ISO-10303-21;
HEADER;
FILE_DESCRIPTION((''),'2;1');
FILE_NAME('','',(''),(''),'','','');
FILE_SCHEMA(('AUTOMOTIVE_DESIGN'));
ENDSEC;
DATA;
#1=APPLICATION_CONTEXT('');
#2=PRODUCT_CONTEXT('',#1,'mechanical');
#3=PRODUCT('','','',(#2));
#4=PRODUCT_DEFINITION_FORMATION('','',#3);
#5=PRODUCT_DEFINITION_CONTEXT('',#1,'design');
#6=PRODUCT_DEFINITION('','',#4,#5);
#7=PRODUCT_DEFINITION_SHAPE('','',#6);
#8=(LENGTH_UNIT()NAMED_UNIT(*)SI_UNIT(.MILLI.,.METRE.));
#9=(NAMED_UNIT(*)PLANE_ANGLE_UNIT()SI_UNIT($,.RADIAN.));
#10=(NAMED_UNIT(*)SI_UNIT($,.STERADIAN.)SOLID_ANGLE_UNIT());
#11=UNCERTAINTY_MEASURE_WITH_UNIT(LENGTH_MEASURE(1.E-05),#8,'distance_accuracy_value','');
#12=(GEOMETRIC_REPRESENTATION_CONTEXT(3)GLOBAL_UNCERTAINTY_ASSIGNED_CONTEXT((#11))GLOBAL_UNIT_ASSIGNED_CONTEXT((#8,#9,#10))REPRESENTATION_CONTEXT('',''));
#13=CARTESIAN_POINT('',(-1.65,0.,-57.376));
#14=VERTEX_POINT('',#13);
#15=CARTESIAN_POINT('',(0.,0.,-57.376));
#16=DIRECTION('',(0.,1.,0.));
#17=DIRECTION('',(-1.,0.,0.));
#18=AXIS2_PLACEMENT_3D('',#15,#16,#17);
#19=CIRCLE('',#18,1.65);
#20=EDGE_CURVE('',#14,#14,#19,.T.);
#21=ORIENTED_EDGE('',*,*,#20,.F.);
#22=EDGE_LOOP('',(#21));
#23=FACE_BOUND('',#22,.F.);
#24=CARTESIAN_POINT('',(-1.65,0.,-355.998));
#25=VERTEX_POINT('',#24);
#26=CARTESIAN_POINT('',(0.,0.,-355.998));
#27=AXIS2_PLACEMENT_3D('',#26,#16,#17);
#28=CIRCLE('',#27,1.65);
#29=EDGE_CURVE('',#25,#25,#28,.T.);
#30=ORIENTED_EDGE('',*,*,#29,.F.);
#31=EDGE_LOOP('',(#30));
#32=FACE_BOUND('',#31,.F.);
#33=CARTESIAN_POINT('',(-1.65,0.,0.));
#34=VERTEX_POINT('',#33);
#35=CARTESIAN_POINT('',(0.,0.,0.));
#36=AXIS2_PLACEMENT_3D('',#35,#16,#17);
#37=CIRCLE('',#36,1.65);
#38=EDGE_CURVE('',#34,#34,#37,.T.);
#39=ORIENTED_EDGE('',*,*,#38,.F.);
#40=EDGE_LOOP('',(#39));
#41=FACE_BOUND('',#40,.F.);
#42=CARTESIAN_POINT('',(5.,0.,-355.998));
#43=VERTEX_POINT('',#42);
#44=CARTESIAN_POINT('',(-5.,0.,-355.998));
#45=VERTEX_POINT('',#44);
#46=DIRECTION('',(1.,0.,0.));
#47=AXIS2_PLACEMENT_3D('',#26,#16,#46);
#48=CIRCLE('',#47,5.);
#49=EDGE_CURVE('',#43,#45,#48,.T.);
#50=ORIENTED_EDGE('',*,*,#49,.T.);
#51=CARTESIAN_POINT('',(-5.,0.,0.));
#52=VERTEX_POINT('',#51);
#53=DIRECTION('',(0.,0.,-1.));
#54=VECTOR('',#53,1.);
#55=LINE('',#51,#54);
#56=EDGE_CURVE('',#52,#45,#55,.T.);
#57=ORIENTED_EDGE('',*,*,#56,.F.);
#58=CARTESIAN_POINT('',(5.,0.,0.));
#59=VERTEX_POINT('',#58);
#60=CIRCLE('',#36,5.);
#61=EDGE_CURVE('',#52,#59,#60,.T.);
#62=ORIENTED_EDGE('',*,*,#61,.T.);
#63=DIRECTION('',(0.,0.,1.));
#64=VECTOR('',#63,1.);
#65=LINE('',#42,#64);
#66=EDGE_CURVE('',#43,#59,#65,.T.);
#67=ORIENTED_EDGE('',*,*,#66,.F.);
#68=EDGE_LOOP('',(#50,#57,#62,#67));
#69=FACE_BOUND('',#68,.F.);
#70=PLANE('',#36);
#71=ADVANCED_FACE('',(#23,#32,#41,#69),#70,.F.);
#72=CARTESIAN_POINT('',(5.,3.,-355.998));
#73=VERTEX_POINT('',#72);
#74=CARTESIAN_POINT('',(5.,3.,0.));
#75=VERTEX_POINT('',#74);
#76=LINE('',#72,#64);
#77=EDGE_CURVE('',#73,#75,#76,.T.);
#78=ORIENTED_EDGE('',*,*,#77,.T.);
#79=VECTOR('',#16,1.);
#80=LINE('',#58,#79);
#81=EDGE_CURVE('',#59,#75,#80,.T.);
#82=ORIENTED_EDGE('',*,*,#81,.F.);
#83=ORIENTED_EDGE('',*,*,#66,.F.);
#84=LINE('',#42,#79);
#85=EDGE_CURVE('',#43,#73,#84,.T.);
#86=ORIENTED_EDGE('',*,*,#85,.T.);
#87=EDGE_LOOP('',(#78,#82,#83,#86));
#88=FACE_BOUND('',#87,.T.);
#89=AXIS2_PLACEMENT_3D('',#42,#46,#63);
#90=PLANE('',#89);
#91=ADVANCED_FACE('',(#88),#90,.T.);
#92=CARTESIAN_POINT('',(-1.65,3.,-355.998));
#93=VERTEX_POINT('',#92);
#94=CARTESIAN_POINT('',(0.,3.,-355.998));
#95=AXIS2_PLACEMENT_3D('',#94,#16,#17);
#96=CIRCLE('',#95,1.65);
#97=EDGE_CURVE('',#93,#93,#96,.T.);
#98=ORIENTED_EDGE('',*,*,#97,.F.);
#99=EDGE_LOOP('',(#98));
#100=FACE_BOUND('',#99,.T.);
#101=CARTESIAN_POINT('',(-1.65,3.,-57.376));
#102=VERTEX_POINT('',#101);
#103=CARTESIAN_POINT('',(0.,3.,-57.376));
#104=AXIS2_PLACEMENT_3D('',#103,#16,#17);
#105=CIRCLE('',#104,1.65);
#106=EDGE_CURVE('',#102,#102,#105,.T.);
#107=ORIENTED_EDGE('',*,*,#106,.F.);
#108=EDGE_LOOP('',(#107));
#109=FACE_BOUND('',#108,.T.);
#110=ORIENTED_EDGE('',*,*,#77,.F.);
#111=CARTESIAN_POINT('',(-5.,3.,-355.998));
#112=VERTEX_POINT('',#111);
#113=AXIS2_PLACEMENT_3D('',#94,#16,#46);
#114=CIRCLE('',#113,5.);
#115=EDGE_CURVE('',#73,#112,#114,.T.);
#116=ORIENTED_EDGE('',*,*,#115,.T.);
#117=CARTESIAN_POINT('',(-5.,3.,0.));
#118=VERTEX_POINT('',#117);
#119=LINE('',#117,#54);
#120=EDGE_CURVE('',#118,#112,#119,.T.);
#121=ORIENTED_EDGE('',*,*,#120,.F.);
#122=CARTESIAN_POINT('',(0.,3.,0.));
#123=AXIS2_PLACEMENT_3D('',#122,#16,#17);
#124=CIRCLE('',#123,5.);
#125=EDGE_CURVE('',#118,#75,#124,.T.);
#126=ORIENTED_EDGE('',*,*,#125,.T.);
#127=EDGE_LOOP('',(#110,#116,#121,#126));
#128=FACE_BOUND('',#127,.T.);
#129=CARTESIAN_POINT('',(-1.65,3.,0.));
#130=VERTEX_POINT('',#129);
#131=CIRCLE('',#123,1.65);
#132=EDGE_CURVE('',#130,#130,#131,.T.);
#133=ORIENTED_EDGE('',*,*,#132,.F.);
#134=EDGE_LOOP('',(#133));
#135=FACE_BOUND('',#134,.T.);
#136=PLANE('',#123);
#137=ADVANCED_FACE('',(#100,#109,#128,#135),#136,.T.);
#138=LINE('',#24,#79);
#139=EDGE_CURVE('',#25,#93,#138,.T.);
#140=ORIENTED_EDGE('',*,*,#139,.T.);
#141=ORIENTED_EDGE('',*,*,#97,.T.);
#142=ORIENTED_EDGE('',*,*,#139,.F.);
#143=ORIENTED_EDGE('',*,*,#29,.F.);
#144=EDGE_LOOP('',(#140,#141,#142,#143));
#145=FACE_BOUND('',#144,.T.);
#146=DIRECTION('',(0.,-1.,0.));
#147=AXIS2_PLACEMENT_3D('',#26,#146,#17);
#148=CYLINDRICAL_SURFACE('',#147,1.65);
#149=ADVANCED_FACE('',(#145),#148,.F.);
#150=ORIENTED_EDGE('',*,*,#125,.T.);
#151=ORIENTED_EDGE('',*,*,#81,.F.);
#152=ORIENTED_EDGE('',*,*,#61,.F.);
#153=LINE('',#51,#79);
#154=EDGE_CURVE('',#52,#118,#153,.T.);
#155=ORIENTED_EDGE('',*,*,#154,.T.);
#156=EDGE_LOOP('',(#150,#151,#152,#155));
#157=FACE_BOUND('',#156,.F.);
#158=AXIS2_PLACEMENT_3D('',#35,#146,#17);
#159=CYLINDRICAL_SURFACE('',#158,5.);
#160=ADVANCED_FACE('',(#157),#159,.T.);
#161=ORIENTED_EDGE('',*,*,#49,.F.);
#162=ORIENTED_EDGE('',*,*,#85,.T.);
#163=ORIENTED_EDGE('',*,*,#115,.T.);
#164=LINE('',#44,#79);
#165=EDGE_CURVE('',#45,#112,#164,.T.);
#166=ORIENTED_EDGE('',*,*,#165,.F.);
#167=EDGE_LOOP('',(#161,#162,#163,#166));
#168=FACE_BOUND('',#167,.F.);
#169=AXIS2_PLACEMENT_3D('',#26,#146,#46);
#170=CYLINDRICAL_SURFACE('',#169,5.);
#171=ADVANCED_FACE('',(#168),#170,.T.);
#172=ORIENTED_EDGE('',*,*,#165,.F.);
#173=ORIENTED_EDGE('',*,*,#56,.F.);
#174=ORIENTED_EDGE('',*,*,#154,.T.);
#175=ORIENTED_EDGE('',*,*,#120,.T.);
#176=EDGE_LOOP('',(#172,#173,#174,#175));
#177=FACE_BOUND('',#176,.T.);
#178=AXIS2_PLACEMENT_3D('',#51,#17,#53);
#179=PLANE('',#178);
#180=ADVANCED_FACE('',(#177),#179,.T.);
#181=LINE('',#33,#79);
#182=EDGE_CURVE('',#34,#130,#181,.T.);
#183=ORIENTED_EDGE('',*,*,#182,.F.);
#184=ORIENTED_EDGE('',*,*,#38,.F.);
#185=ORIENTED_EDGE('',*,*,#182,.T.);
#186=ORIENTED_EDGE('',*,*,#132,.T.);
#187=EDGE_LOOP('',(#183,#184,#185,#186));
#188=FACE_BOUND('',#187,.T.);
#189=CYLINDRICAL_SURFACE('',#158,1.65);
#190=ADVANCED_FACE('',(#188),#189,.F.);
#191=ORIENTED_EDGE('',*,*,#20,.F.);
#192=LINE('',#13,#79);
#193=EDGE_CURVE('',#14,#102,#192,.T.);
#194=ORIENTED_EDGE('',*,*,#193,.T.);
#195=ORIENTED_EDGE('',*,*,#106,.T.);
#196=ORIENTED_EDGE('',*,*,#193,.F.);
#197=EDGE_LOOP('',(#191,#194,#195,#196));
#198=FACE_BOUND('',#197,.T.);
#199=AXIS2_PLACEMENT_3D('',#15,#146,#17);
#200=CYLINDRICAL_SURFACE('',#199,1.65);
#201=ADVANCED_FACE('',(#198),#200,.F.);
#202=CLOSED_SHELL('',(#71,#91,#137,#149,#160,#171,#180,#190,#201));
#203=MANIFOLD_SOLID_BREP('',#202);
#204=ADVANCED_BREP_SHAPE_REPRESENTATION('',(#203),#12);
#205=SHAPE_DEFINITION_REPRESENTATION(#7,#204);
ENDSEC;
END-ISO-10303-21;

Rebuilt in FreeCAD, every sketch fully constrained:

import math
import FreeCAD as App
import Part
import Sketcher
Q = App.Units.Quantity

doc = App.newDocument("Part")
body = doc.addObject("PartDesign::Body", "Body")

sketch1 = body.newObject("Sketcher::SketchObject", "Sketch")
sketch1.AttachmentSupport = (doc.getObject("XZ_Plane"), [""])
sketch1.MapMode = "FlatFace"
sketch1.addGeometry([
    Part.LineSegment(App.Vector(-5, -356, 0), App.Vector(-5, 0, 0)),
    Part.ArcOfCircle(Part.Circle(App.Vector(0, 0, 0), App.Vector(0, 0, 1), 5), math.radians(0), math.radians(180)),
    Part.LineSegment(App.Vector(5, 0, 0), App.Vector(5, -356, 0)),
    Part.ArcOfCircle(Part.Circle(App.Vector(0, -356, 0), App.Vector(0, 0, 1), 5), math.radians(180), math.radians(360)),
    Part.Circle(App.Vector(0, -356, 0), App.Vector(0, 0, 1), 1.6),
    Part.Circle(App.Vector(0, -57.4, 0), App.Vector(0, 0, 1), 1.6),
    Part.Circle(App.Vector(0, 0, 0), App.Vector(0, 0, 1), 1.6),
], False)
sketch1.addConstraint([
    Sketcher.Constraint("Tangent", 0, 2, 1, 2),
    Sketcher.Constraint("Tangent", 1, 1, 2, 1),
    Sketcher.Constraint("Tangent", 2, 2, 3, 2),
    Sketcher.Constraint("Tangent", 3, 1, 0, 1),
    Sketcher.Constraint("Vertical", 0),
    Sketcher.Constraint("Vertical", 2),
    Sketcher.Constraint("Coincident", 1, 3, -1, 1),
    Sketcher.Constraint("Coincident", 6, 3, -1, 1),
    Sketcher.Constraint("Coincident", 4, 3, 3, 3),
    Sketcher.Constraint("Equal", 4, 5),
    Sketcher.Constraint("Equal", 5, 6),
    Sketcher.Constraint("PointOnObject", 5, 3, -2),
    Sketcher.Constraint("Radius", 1, Q("5 mm")),
    Sketcher.Constraint("Diameter", 4, Q("3.3 mm")),
    Sketcher.Constraint("DistanceY", 0, 1, 0, 2, Q("355.998 mm")),
    Sketcher.Constraint("DistanceY", 5, 3, -1, 1, Q("57.376 mm")),
])
pad1 = body.newObject("PartDesign::Pad", "Pad")
pad1.Profile = sketch1
pad1.Length = 3
pad1.Reversed = True

doc.recompute()
